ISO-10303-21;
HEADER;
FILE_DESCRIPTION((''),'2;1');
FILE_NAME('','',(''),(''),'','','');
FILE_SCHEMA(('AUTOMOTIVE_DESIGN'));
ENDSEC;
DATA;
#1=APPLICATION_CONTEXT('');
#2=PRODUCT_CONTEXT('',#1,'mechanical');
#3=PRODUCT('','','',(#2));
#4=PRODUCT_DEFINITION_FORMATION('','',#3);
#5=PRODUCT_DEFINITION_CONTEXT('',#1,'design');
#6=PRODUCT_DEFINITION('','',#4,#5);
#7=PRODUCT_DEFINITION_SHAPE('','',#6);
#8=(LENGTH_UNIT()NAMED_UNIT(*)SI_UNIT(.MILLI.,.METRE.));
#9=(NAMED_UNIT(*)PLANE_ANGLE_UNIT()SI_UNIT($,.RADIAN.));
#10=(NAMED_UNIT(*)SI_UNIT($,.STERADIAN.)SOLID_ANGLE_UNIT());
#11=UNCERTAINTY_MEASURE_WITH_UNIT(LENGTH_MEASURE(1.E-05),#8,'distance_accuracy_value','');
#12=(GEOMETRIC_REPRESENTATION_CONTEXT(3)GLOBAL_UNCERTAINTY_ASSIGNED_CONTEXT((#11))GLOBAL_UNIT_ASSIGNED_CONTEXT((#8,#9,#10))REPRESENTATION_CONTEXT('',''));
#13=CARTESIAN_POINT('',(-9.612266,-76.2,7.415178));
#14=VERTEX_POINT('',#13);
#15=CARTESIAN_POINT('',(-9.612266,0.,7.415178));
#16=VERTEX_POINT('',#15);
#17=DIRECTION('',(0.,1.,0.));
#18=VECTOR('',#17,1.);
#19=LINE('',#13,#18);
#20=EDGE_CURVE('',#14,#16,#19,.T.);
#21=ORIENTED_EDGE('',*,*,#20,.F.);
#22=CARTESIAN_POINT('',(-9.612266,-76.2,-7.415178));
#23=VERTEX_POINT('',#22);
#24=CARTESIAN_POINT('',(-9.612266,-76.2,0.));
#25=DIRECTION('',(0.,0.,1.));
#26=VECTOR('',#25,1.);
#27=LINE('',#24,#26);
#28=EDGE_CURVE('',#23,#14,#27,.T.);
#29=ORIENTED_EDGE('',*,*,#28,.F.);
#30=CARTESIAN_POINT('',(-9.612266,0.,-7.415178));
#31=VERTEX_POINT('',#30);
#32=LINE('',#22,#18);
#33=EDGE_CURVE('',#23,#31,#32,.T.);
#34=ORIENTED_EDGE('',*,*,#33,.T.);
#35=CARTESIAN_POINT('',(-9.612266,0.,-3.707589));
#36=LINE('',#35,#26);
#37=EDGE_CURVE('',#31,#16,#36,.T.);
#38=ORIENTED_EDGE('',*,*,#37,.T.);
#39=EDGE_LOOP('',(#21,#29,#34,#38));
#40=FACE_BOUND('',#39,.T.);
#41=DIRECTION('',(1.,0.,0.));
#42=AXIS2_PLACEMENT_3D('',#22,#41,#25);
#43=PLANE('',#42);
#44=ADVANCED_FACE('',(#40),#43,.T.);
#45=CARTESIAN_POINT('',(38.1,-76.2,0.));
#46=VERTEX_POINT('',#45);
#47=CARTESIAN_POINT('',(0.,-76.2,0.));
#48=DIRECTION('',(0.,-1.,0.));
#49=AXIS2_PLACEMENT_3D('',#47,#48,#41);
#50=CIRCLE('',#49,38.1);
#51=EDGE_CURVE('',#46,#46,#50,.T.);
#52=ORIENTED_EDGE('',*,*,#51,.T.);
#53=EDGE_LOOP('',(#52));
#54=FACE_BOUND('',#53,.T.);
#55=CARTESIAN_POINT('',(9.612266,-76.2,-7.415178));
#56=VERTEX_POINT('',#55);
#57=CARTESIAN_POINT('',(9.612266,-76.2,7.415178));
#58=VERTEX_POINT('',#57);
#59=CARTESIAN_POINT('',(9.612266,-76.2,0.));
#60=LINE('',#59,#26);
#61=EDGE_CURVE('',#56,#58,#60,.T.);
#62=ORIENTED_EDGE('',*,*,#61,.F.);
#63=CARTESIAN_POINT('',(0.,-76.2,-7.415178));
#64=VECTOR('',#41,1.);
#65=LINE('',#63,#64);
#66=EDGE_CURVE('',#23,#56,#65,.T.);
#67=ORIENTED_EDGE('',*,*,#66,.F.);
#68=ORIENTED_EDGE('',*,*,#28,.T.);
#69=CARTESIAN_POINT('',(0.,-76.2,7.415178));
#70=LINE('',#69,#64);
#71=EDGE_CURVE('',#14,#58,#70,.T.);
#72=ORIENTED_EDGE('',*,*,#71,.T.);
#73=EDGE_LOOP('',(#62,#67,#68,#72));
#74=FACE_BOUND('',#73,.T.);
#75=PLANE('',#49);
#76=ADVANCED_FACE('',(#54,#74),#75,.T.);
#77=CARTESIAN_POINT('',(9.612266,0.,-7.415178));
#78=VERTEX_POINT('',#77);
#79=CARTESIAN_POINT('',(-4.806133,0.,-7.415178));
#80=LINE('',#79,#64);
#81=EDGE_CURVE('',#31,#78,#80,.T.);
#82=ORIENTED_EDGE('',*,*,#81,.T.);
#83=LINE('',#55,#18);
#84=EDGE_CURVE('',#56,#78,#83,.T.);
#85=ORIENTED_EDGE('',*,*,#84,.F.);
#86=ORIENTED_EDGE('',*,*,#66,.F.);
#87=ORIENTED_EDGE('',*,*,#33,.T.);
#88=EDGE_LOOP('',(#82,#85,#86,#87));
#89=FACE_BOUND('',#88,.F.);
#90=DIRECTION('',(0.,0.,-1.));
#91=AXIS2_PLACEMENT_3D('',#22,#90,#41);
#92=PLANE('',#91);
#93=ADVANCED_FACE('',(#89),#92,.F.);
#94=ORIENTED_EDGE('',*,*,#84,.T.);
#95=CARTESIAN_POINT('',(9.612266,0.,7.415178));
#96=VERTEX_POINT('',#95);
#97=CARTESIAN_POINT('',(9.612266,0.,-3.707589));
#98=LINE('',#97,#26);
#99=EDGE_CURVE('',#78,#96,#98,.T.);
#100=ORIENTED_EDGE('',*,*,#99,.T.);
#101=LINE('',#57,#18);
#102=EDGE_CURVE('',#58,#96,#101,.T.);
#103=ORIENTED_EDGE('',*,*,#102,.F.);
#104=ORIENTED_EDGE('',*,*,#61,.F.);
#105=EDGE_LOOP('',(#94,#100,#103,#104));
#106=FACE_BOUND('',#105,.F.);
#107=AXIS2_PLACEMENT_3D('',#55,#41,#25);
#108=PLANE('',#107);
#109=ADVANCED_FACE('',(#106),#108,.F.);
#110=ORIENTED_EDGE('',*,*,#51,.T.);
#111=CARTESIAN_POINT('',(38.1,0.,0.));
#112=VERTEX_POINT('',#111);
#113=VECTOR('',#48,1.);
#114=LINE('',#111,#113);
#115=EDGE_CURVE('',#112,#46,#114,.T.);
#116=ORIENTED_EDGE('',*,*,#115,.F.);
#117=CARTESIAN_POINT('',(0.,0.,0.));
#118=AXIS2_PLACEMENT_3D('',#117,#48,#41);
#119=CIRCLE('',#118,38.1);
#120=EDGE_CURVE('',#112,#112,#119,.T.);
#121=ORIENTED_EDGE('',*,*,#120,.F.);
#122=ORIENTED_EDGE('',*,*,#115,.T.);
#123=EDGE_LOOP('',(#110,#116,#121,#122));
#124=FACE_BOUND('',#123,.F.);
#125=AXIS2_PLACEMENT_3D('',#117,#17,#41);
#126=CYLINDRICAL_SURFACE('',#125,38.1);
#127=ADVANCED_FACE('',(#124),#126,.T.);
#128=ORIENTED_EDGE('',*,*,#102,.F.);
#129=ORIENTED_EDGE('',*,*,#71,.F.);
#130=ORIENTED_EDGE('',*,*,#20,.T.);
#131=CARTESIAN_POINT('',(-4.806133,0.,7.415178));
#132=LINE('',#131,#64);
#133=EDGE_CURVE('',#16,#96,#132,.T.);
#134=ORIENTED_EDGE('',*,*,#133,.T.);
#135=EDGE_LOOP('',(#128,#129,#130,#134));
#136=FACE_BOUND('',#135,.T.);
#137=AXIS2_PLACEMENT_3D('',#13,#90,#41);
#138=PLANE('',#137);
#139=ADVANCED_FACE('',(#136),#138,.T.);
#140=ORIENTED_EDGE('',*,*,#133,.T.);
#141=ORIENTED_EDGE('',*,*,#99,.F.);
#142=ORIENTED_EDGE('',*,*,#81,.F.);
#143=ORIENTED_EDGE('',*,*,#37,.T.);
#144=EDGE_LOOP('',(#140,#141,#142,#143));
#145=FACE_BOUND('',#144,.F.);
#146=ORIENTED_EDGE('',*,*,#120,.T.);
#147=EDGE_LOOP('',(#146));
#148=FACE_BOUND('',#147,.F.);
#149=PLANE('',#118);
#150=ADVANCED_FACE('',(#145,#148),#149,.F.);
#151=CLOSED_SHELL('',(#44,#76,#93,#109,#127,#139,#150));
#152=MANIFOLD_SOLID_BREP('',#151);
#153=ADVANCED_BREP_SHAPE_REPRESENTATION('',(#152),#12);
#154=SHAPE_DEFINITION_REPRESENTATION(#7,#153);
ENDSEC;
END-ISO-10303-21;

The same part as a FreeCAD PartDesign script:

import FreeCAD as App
import Part
import Sketcher
Q = App.Units.Quantity

doc = App.newDocument("Part")
body = doc.addObject("PartDesign::Body", "Body")

sketch1 = doc.addObject("Sketcher::SketchObject", "Sketch")
body.addObject(sketch1)
sketch1.AttachmentSupport = (doc.XZ_Plane, [""])
sketch1.MapMode = "FlatFace"
sketch1.addGeometry(Part.Circle(App.Vector(0, 0, 0), App.Vector(0, 0, 1), 38), False)
sketch1.addConstraint(Sketcher.Constraint("Coincident", 0, 3, -1, 1))
sketch1.addConstraint(Sketcher.Constraint("Diameter", 0, Q("3 in")))
pad1 = doc.addObject("PartDesign::Pad", "Pad")
body.addObject(pad1)
pad1.Profile = sketch1
pad1.Length = Q("3 in")

sketch2 = doc.addObject("Sketcher::SketchObject", "Sketch001")
body.addObject(sketch2)
sketch2.AttachmentSupport = (doc.XZ_Plane, [""])
sketch2.MapMode = "FlatFace"
sketch2.AttachmentOffset = App.Placement(App.Vector(0, 0, 3 * 25.4), App.Rotation())
sketch2.addGeometry(Part.LineSegment(App.Vector(-10, 7, 0), App.Vector(-10, -7, 0)), False)
sketch2.addGeometry(Part.LineSegment(App.Vector(-10, -7, 0), App.Vector(10, -7, 0)), False)
sketch2.addGeometry(Part.LineSegment(App.Vector(10, -7, 0), App.Vector(10, 7, 0)), False)
sketch2.addGeometry(Part.LineSegment(App.Vector(10, 7, 0), App.Vector(-10, 7, 0)), False)
sketch2.addConstraint(Sketcher.Constraint("Coincident", 0, 2, 1, 1))
sketch2.addConstraint(Sketcher.Constraint("Coincident", 1, 2, 2, 1))
sketch2.addConstraint(Sketcher.Constraint("Coincident", 2, 2, 3, 1))
sketch2.addConstraint(Sketcher.Constraint("Coincident", 3, 2, 0, 1))
sketch2.addConstraint(Sketcher.Constraint("Vertical", 0))
sketch2.addConstraint(Sketcher.Constraint("Horizontal", 1))
sketch2.addConstraint(Sketcher.Constraint("Vertical", 2))
sketch2.addConstraint(Sketcher.Constraint("Horizontal", 3))
sketch2.addConstraint(Sketcher.Constraint("Symmetric", 0, 2, 2, 2, -1, 1))
sketch2.addConstraint(Sketcher.Constraint("DistanceX", 1, 1, 1, 2, Q("19.224532 mm")))
sketch2.addConstraint(Sketcher.Constraint("DistanceY", 0, 2, 0, 1, Q("14.830356 mm")))
pocket1 = doc.addObject("PartDesign::Pocket", "Pocket")
body.addObject(pocket1)
pocket1.Profile = sketch2
pocket1.Type = "ThroughAll"

doc.recompute()
